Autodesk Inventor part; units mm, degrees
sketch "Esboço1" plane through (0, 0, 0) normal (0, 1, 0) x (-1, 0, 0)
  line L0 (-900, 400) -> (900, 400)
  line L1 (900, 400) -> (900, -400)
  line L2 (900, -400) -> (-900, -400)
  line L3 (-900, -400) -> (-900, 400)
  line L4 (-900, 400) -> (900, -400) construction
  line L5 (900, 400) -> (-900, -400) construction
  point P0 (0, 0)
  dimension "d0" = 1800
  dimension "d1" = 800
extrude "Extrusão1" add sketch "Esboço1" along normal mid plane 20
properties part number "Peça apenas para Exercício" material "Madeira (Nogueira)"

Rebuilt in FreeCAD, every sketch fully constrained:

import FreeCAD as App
import Part
import Sketcher
from FreeCAD import Vector


def add_polygon(sketch, points):
    """Adds a closed chain of lines whose ends are joined by coincident constraints."""
    first, n = sketch.GeometryCount, len(points)
    for a, b in zip(points, points[1:] + points[:1]):
        sketch.addGeometry(Part.LineSegment(App.Vector(*a, 0), App.Vector(*b, 0)), False)
    for i in range(n):
        sketch.addConstraint(Sketcher.Constraint("Coincident", first + i, 2, first + (i + 1) % n, 1))

doc = App.newDocument("Part")
body = doc.addObject("PartDesign::Body", "Body")

# Sketch on XZ plane
sketch1 = body.newObject("Sketcher::SketchObject", "Sketch")
sketch1.AttachmentSupport = (doc.getObject("XZ_Plane"), [""])
sketch1.MapMode = "FlatFace"
add_polygon(sketch1, [(-900, 400), (900, 400), (900, -400), (-900, -400)])  # lines 0-3
sketch1.addConstraint([
    Sketcher.Constraint("Horizontal", 0),
    Sketcher.Constraint("Vertical", 1),
    Sketcher.Constraint("Horizontal", 2),
    Sketcher.Constraint("Vertical", 3),
    Sketcher.Constraint("Symmetric", 0, 2, 2, 2, -1, 1),
    Sketcher.Constraint("DistanceX", 0, 1, 0, 2, 1800.0),
    Sketcher.Constraint("DistanceY", 1, 2, 1, 1, 800.0),
])
pad1 = body.newObject("PartDesign::Pad", "Pad")
pad1.Profile = sketch1
pad1.Length = 20
pad1.Midplane = True

doc.recompute()
